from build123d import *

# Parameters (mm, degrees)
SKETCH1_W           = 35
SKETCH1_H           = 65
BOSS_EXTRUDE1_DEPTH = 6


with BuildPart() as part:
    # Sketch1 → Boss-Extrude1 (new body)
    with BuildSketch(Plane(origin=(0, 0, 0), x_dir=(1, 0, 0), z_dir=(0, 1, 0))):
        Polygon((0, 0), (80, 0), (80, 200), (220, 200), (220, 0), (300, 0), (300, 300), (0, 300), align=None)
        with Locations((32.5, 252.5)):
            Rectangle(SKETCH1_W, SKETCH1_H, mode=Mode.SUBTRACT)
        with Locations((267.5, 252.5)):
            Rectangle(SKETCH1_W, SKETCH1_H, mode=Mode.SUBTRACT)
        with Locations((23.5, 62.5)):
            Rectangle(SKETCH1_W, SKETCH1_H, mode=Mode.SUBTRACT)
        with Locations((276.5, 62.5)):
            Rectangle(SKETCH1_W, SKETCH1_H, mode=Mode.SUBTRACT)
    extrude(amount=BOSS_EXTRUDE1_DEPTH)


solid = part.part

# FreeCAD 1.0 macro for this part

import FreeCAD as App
import Part
import Sketcher

V = App.Vector
Q = App.Units.Quantity

doc = App.newDocument("Part")
body = doc.addObject("PartDesign::Body", "Body")

# Sketch on XZ plane
sketch1 = body.newObject("Sketcher::SketchObject", "Sketch")
sketch1.AttachmentSupport = (doc.getObject("XZ_Plane"), [""])
sketch1.MapMode = "FlatFace"
sketch1.addGeometry([
    Part.LineSegment(V(0, 0, 0), V(80, 0, 0)),  # 0
    Part.LineSegment(V(80, 0, 0), V(80, -200, 0)),  # 1
    Part.LineSegment(V(80, -200, 0), V(220, -200, 0)),  # 2
    Part.LineSegment(V(220, -200, 0), V(220, 0, 0)),  # 3
    Part.LineSegment(V(220, 0, 0), V(300, 0, 0)),  # 4
    Part.LineSegment(V(300, 0, 0), V(300, -300, 0)),  # 5
    Part.LineSegment(V(300, -300, 0), V(0, -300, 0)),  # 6
    Part.LineSegment(V(0, -300, 0), V(0, 0, 0)),  # 7
    Part.LineSegment(V(41, -30, 0), V(6, -30, 0)),  # 8
    Part.LineSegment(V(6, -30, 0), V(6, -95, 0)),  # 9
    Part.LineSegment(V(6, -95, 0), V(41, -95, 0)),  # 10
    Part.LineSegment(V(41, -95, 0), V(41, -30, 0)),  # 11
    Part.LineSegment(V(294, -30, 0), V(259, -30, 0)),  # 12
    Part.LineSegment(V(259, -30, 0), V(259, -95, 0)),  # 13
    Part.LineSegment(V(259, -95, 0), V(294, -95, 0)),  # 14
    Part.LineSegment(V(294, -95, 0), V(294, -30, 0)),  # 15
    Part.LineSegment(V(50, -220, 0), V(15, -220, 0)),  # 16
    Part.LineSegment(V(15, -220, 0), V(15, -285, 0)),  # 17
    Part.LineSegment(V(15, -285, 0), V(50, -285, 0)),  # 18
    Part.LineSegment(V(50, -285, 0), V(50, -220, 0)),  # 19
    Part.LineSegment(V(285, -220, 0), V(250, -220, 0)),  # 20
    Part.LineSegment(V(250, -220, 0), V(250, -285, 0)),  # 21
    Part.LineSegment(V(250, -285, 0), V(285, -285, 0)),  # 22
    Part.LineSegment(V(285, -285, 0), V(285, -220, 0)),  # 23
], False)
sketch1.addConstraint([
    Sketcher.Constraint("Coincident", 0, 2, 1, 1),
    Sketcher.Constraint("Coincident", 1, 2, 2, 1),
    Sketcher.Constraint("Coincident", 2, 2, 3, 1),
    Sketcher.Constraint("Coincident", 3, 2, 4, 1),
    Sketcher.Constraint("Coincident", 4, 2, 5, 1),
    Sketcher.Constraint("Coincident", 5, 2, 6, 1),
    Sketcher.Constraint("Coincident", 6, 2, 7, 1),
    Sketcher.Constraint("Coincident", 7, 2, 0, 1),
    Sketcher.Constraint("Coincident", 8, 2, 9, 1),
    Sketcher.Constraint("Coincident", 9, 2, 10, 1),
    Sketcher.Constraint("Coincident", 10, 2, 11, 1),
    Sketcher.Constraint("Coincident", 11, 2, 8, 1),
    Sketcher.Constraint("Coincident", 12, 2, 13, 1),
    Sketcher.Constraint("Coincident", 13, 2, 14, 1),
    Sketcher.Constraint("Coincident", 14, 2, 15, 1),
    Sketcher.Constraint("Coincident", 15, 2, 12, 1),
    Sketcher.Constraint("Coincident", 16, 2, 17, 1),
    Sketcher.Constraint("Coincident", 17, 2, 18, 1),
    Sketcher.Constraint("Coincident", 18, 2, 19, 1),
    Sketcher.Constraint("Coincident", 19, 2, 16, 1),
    Sketcher.Constraint("Coincident", 20, 2, 21, 1),
    Sketcher.Constraint("Coincident", 21, 2, 22, 1),
    Sketcher.Constraint("Coincident", 22, 2, 23, 1),
    Sketcher.Constraint("Coincident", 23, 2, 20, 1),
    Sketcher.Constraint("Horizontal", 0),
    Sketcher.Constraint("Vertical", 1),
    Sketcher.Constraint("Horizontal", 2),
    Sketcher.Constraint("Vertical", 3),
    Sketcher.Constraint("Horizontal", 4),
    Sketcher.Constraint("Vertical", 5),
    Sketcher.Constraint("Horizontal", 6),
    Sketcher.Constraint("Vertical", 7),
    Sketcher.Constraint("Horizontal", 8),
    Sketcher.Constraint("Vertical", 9),
    Sketcher.Constraint("Horizontal", 10),
    Sketcher.Constraint("Vertical", 11),
    Sketcher.Constraint("Horizontal", 12),
    Sketcher.Constraint("Vertical", 13),
    Sketcher.Constraint("Horizontal", 14),
    Sketcher.Constraint("Vertical", 15),
    Sketcher.Constraint("Horizontal", 16),
    Sketcher.Constraint("Vertical", 17),
    Sketcher.Constraint("Horizontal", 18),
    Sketcher.Constraint("Vertical", 19),
    Sketcher.Constraint("Horizontal", 20),
    Sketcher.Constraint("Vertical", 21),
    Sketcher.Constraint("Horizontal", 22),
    Sketcher.Constraint("Vertical", 23),
    Sketcher.Constraint("Coincident", 7, 2, -1, 1),
    Sketcher.Constraint("PointOnObject", 3, 2, -1),
    Sketcher.Constraint("Horizontal", 11, 2, 12, 2),
    Sketcher.Constraint("Horizontal", 10, 2, 13, 2),
    Sketcher.Constraint("Horizontal", 19, 2, 20, 2),
    Sketcher.Constraint("Horizontal", 18, 2, 21, 2),
    Sketcher.Constraint("Equal", 0, 4),
    Sketcher.Constraint("Equal", 10, 12),
    Sketcher.Constraint("Equal", 14, 16),
    Sketcher.Constraint("Equal", 18, 20),
    Sketcher.Constraint("Equal", 6, 5),
    Sketcher.Constraint("Equal", 15, 17),
    Sketcher.Constraint("DistanceX", 0, 1, 0, 2, Q("80 mm")),
    Sketcher.Constraint("DistanceX", 2, 1, 2, 2, Q("140 mm")),
    Sketcher.Constraint("DistanceX", 8, 2, 8, 1, Q("35 mm")),
    Sketcher.Constraint("DistanceY", 1, 2, 1, 1, Q("200 mm")),
    Sketcher.Constraint("DistanceY", 9, 2, 9, 1, Q("65 mm")),
    Sketcher.Constraint("DistanceX", -1, 1, 8, 2, Q("6 mm")),
    Sketcher.Constraint("DistanceY", 8, 2, -1, 1, Q("30 mm")),
    Sketcher.Constraint("DistanceX", -1, 1, 12, 2, Q("259 mm")),
    Sketcher.Constraint("DistanceX", -1, 1, 16, 2, Q("15 mm")),
    Sketcher.Constraint("DistanceY", 16, 2, -1, 1, Q("220 mm")),
    Sketcher.Constraint("DistanceX", -1, 1, 20, 2, Q("250 mm")),
])
pad1 = body.newObject("PartDesign::Pad", "Pad")
pad1.Profile = sketch1
pad1.Length = 6
pad1.Reversed = True

doc.recompute()
